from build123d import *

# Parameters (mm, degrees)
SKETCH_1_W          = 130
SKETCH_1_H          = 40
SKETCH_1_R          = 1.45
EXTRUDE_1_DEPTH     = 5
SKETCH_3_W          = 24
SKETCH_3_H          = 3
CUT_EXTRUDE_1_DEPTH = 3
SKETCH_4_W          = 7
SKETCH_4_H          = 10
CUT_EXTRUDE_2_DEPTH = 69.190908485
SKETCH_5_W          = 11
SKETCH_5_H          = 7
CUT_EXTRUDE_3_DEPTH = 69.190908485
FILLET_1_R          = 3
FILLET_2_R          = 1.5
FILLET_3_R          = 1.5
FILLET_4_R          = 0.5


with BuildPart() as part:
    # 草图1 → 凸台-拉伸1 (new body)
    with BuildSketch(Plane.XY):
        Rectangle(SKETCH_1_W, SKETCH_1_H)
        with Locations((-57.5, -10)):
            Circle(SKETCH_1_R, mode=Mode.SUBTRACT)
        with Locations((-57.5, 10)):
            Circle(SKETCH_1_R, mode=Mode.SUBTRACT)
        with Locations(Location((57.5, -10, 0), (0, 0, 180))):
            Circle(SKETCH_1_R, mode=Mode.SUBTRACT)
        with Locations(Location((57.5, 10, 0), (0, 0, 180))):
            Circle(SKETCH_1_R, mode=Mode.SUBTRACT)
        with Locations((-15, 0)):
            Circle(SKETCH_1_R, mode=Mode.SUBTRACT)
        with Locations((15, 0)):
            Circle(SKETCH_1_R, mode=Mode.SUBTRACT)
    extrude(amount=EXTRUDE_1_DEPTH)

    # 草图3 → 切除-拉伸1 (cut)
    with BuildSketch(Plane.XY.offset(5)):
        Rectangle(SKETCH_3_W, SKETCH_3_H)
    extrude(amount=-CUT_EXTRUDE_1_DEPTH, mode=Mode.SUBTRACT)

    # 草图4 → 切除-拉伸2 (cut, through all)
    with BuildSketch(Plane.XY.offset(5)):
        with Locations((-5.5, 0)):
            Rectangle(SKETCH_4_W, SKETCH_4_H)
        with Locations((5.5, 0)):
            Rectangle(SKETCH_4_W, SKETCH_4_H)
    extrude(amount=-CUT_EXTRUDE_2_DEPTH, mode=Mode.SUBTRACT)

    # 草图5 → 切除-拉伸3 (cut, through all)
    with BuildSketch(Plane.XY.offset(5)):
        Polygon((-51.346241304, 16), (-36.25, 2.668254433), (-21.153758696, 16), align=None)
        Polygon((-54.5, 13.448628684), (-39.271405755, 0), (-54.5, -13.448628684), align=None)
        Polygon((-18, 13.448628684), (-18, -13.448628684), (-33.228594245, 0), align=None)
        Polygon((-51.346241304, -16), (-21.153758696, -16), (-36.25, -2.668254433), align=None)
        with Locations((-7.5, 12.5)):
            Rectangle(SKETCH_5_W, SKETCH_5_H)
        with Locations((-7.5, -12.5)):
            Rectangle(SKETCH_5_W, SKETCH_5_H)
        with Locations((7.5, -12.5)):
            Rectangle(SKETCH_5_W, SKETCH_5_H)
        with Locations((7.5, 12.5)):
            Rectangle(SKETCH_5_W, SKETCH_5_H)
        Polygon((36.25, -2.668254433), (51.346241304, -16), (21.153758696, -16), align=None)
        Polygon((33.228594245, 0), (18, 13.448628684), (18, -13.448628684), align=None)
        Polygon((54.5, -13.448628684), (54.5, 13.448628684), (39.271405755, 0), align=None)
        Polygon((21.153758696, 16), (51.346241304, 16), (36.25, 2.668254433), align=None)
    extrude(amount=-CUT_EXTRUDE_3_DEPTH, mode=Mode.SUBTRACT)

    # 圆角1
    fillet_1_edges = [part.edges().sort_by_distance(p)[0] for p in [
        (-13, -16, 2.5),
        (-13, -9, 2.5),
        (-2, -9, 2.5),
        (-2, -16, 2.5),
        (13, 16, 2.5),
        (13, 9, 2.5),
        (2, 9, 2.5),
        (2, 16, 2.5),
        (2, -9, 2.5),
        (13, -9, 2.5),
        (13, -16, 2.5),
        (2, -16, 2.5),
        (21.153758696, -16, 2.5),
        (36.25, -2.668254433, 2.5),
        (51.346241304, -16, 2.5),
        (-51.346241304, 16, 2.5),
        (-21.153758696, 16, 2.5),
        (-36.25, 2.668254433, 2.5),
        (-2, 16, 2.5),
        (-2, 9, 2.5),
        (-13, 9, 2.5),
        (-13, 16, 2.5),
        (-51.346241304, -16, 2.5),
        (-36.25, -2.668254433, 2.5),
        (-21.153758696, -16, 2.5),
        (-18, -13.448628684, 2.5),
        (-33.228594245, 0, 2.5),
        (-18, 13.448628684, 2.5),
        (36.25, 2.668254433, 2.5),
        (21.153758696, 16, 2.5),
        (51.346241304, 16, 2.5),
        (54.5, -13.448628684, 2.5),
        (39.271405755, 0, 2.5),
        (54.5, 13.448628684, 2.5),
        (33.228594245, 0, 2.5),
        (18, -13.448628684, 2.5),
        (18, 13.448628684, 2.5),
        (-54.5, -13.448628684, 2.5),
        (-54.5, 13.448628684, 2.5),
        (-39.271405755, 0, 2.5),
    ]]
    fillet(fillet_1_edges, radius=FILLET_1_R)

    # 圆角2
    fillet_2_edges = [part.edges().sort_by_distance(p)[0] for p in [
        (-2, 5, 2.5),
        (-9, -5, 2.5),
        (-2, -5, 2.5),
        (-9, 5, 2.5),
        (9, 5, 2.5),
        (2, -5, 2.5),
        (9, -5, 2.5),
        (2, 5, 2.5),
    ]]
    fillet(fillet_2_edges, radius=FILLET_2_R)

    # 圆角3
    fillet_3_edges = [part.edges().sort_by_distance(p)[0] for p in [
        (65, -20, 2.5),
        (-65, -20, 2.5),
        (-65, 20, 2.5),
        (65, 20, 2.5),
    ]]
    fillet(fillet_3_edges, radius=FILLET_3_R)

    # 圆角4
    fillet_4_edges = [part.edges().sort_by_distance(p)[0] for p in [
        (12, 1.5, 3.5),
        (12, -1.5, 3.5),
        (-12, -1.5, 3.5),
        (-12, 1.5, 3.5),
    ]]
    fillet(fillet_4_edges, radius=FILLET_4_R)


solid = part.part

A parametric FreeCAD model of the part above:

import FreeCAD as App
import Part
import Sketcher

V = App.Vector


def edges_at(feature, points):
    """Names of the edges that pass closest to the given points."""
    edges = feature.Shape.Edges
    near = lambda p: min(range(len(edges)), key=lambda i: edges[i].distToShape(Part.Vertex(*p))[0])
    return sorted({f"Edge{near(p) + 1}" for p in points})

doc = App.newDocument("Part")
body = doc.addObject("PartDesign::Body", "Body")

# Sketch on XY plane
sketch1 = body.newObject("Sketcher::SketchObject", "Sketch")
sketch1.AttachmentSupport = (doc.getObject("XY_Plane"), [""])
sketch1.MapMode = "FlatFace"
sketch1.addGeometry([
    Part.LineSegment(V(-65, 20, 0), V(-65, -20, 0)),  # 0
    Part.LineSegment(V(-65, -20, 0), V(65, -20, 0)),  # 1
    Part.LineSegment(V(65, -20, 0), V(65, 20, 0)),  # 2
    Part.LineSegment(V(65, 20, 0), V(-65, 20, 0)),  # 3
    Part.Circle(V(-57.5, -10, 0), V(0, 0, 1), 1.45),  # 4
    Part.Circle(V(57.5, -10, 0), V(0, 0, 1), 1.45),  # 5
    Part.Circle(V(-15, 0, 0), V(0, 0, 1), 1.45),  # 6
    Part.Circle(V(-57.5, 10, 0), V(0, 0, 1), 1.45),  # 7
    Part.Circle(V(15, 0, 0), V(0, 0, 1), 1.45),  # 8
    Part.Circle(V(57.5, 10, 0), V(0, 0, 1), 1.45),  # 9
], False)
sketch1.addConstraint([
    Sketcher.Constraint("Coincident", 0, 2, 1, 1),
    Sketcher.Constraint("Coincident", 1, 2, 2, 1),
    Sketcher.Constraint("Coincident", 2, 2, 3, 1),
    Sketcher.Constraint("Coincident", 3, 2, 0, 1),
    Sketcher.Constraint("Vertical", 0),
    Sketcher.Constraint("Horizontal", 1),
    Sketcher.Constraint("Vertical", 2),
    Sketcher.Constraint("Horizontal", 3),
    Sketcher.Constraint("Equal", 4, 5),
    Sketcher.Constraint("Equal", 5, 6),
    Sketcher.Constraint("Equal", 6, 7),
    Sketcher.Constraint("Equal", 7, 8),
    Sketcher.Constraint("Equal", 8, 9),
    Sketcher.Constraint("Symmetric", 5, 3, 7, 3, -1, 1),
    Sketcher.Constraint("Symmetric", 6, 3, 8, 3, -1, 1),
    Sketcher.Constraint("Symmetric", 4, 3, 9, 3, -1, 1),
    Sketcher.Constraint("Symmetric", 0, 2, 2, 2, -1, 1),
    Sketcher.Constraint("Symmetric", 4, 3, 5, 3, -2),
    Sketcher.Constraint("PointOnObject", 6, 3, -1),
    Sketcher.Constraint("Diameter", 4, 2.9),
    Sketcher.Constraint("DistanceX", 1, 1, 1, 2, 130.0),
    Sketcher.Constraint("DistanceY", 0, 2, 0, 1, 40.0),
    Sketcher.Constraint("DistanceY", 4, 3, -1, 1, 10.0),
    Sketcher.Constraint("DistanceX", 6, 3, -1, 1, 15.0),
    Sketcher.Constraint("DistanceX", 4, 3, 5, 3, 115.0),
])
pad1 = body.newObject("PartDesign::Pad", "Pad")
pad1.Profile = sketch1
pad1.Length = 5

# Sketch on XY plane
sketch2 = body.newObject("Sketcher::SketchObject", "Sketch001")
sketch2.AttachmentSupport = (doc.getObject("XY_Plane"), [""])
sketch2.MapMode = "FlatFace"
sketch2.AttachmentOffset = App.Placement(V(0, 0, 5), App.Rotation())
sketch2.addGeometry([
    Part.LineSegment(V(-12, 1.5, 0), V(-12, -1.5, 0)),
    Part.LineSegment(V(-12, -1.5, 0), V(12, -1.5, 0)),
    Part.LineSegment(V(12, -1.5, 0), V(12, 1.5, 0)),
    Part.LineSegment(V(12, 1.5, 0), V(-12, 1.5, 0)),
], False)
sketch2.addConstraint([
    Sketcher.Constraint("Coincident", 0, 2, 1, 1),
    Sketcher.Constraint("Coincident", 1, 2, 2, 1),
    Sketcher.Constraint("Coincident", 2, 2, 3, 1),
    Sketcher.Constraint("Coincident", 3, 2, 0, 1),
    Sketcher.Constraint("Vertical", 0),
    Sketcher.Constraint("Horizontal", 1),
    Sketcher.Constraint("Vertical", 2),
    Sketcher.Constraint("Horizontal", 3),
    Sketcher.Constraint("Symmetric", 0, 2, 2, 2, -1, 1),
    Sketcher.Constraint("DistanceX", 1, 1, 1, 2, 24.0),
    Sketcher.Constraint("DistanceY", 0, 2, 0, 1, 3.0),
])
pocket1 = body.newObject("PartDesign::Pocket", "Pocket")
pocket1.Profile = sketch2
pocket1.Length = 3

# Sketch on XY plane
sketch3 = body.newObject("Sketcher::SketchObject", "Sketch002")
sketch3.AttachmentSupport = (doc.getObject("XY_Plane"), [""])
sketch3.MapMode = "FlatFace"
sketch3.AttachmentOffset = App.Placement(V(0, 0, 5), App.Rotation())
sketch3.addGeometry([
    Part.LineSegment(V(-9, 5, 0), V(-9, -5, 0)),  # 0
    Part.LineSegment(V(-9, -5, 0), V(-2, -5, 0)),  # 1
    Part.LineSegment(V(-2, -5, 0), V(-2, 5, 0)),  # 2
    Part.LineSegment(V(-2, 5, 0), V(-9, 5, 0)),  # 3
    Part.LineSegment(V(2, 5, 0), V(2, -5, 0)),  # 4
    Part.LineSegment(V(2, -5, 0), V(9, -5, 0)),  # 5
    Part.LineSegment(V(9, -5, 0), V(9, 5, 0)),  # 6
    Part.LineSegment(V(9, 5, 0), V(2, 5, 0)),  # 7
], False)
sketch3.addConstraint([
    Sketcher.Constraint("Coincident", 0, 2, 1, 1),
    Sketcher.Constraint("Coincident", 1, 2, 2, 1),
    Sketcher.Constraint("Coincident", 2, 2, 3, 1),
    Sketcher.Constraint("Coincident", 3, 2, 0, 1),
    Sketcher.Constraint("Coincident", 4, 2, 5, 1),
    Sketcher.Constraint("Coincident", 5, 2, 6, 1),
    Sketcher.Constraint("Coincident", 6, 2, 7, 1),
    Sketcher.Constraint("Coincident", 7, 2, 4, 1),
    Sketcher.Constraint("Vertical", 0),
    Sketcher.Constraint("Horizontal", 1),
    Sketcher.Constraint("Vertical", 2),
    Sketcher.Constraint("Horizontal", 3),
    Sketcher.Constraint("Vertical", 4),
    Sketcher.Constraint("Horizontal", 5),
    Sketcher.Constraint("Vertical", 6),
    Sketcher.Constraint("Horizontal", 7),
    Sketcher.Constraint("Symmetric", 2, 2, 4, 2, -1, 1),
    Sketcher.Constraint("Symmetric", 0, 2, 6, 2, -1, 1),
    Sketcher.Constraint("Horizontal", 1, 2, 4, 2),
    Sketcher.Constraint("DistanceX", 1, 1, 1, 2, 7.0),
    Sketcher.Constraint("DistanceY", 0, 2, 0, 1, 10.0),
    Sketcher.Constraint("DistanceX", 0, 2, -1, 1, 9.0),
])
pocket2 = body.newObject("PartDesign::Pocket", "Pocket001")
pocket2.Profile = sketch3
pocket2.Type = "ThroughAll"

# Sketch on XY plane
sketch4 = body.newObject("Sketcher::SketchObject", "Sketch003")
sketch4.AttachmentSupport = (doc.getObject("XY_Plane"), [""])
sketch4.MapMode = "FlatFace"
sketch4.AttachmentOffset = App.Placement(V(0, 0, 5), App.Rotation())
sketch4.addGeometry([
    Part.LineSegment(V(-51.346241, 16, 0), V(-36.25, 2.668254, 0)),  # 0
    Part.LineSegment(V(-36.25, 2.668254, 0), V(-21.153759, 16, 0)),  # 1
    Part.LineSegment(V(-21.153759, 16, 0), V(-51.346241, 16, 0)),  # 2
    Part.LineSegment(V(-39.271406, 0, 0), V(-54.5, 13.448629, 0)),  # 3
    Part.LineSegment(V(-54.5, 13.448629, 0), V(-54.5, -13.448629, 0)),  # 4
    Part.LineSegment(V(-54.5, -13.448629, 0), V(-39.271406, 0, 0)),  # 5
    Part.LineSegment(V(-18, -13.448629, 0), V(-18, 13.448629, 0)),  # 6
    Part.LineSegment(V(-18, 13.448629, 0), V(-33.228594, 0, 0)),  # 7
    Part.LineSegment(V(-33.228594, 0, 0), V(-18, -13.448629, 0)),  # 8
    Part.LineSegment(V(-51.346241, -16, 0), V(-21.153759, -16, 0)),  # 9
    Part.LineSegment(V(-21.153759, -16, 0), V(-36.25, -2.668254, 0)),  # 10
    Part.LineSegment(V(-36.25, -2.668254, 0), V(-51.346241, -16, 0)),  # 11
    Part.LineSegment(V(-13, 16, 0), V(-13, 9, 0)),  # 12
    Part.LineSegment(V(-13, 9, 0), V(-2, 9, 0)),  # 13
    Part.LineSegment(V(-2, 9, 0), V(-2, 16, 0)),  # 14
    Part.LineSegment(V(-2, 16, 0), V(-13, 16, 0)),  # 15
    Part.LineSegment(V(-13, -9, 0), V(-13, -16, 0)),  # 16
    Part.LineSegment(V(-13, -16, 0), V(-2, -16, 0)),  # 17
    Part.LineSegment(V(-2, -16, 0), V(-2, -9, 0)),  # 18
    Part.LineSegment(V(-2, -9, 0), V(-13, -9, 0)),  # 19
    Part.LineSegment(V(2, -9, 0), V(2, -16, 0)),  # 20
    Part.LineSegment(V(2, -16, 0), V(13, -16, 0)),  # 21
    Part.LineSegment(V(13, -16, 0), V(13, -9, 0)),  # 22
    Part.LineSegment(V(13, -9, 0), V(2, -9, 0)),  # 23
    Part.LineSegment(V(2, 16, 0), V(2, 9, 0)),  # 24
    Part.LineSegment(V(2, 9, 0), V(13, 9, 0)),  # 25
    Part.LineSegment(V(13, 9, 0), V(13, 16, 0)),  # 26
    Part.LineSegment(V(13, 16, 0), V(2, 16, 0)),  # 27
    Part.LineSegment(V(51.346241, -16, 0), V(36.25, -2.668254, 0)),  # 28
    Part.LineSegment(V(36.25, -2.668254, 0), V(21.153759, -16, 0)),  # 29
    Part.LineSegment(V(21.153759, -16, 0), V(51.346241, -16, 0)),  # 30
    Part.LineSegment(V(33.228594, 0, 0), V(18, 13.448629, 0)),  # 31
    Part.LineSegment(V(18, 13.448629, 0), V(18, -13.448629, 0)),  # 32
    Part.LineSegment(V(18, -13.448629, 0), V(33.228594, 0, 0)),  # 33
    Part.LineSegment(V(54.5, -13.448629, 0), V(54.5, 13.448629, 0)),  # 34
    Part.LineSegment(V(54.5, 13.448629, 0), V(39.271406, 0, 0)),  # 35
    Part.LineSegment(V(39.271406, 0, 0), V(54.5, -13.448629, 0)),  # 36
    Part.LineSegment(V(51.346241, 16, 0), V(21.153759, 16, 0)),  # 37
    Part.LineSegment(V(21.153759, 16, 0), V(36.25, 2.668254, 0)),  # 38
    Part.LineSegment(V(36.25, 2.668254, 0), V(51.346241, 16, 0)),  # 39
], False)
sketch4.addConstraint([
    Sketcher.Constraint("Coincident", 0, 2, 1, 1),
    Sketcher.Constraint("Coincident", 1, 2, 2, 1),
    Sketcher.Constraint("Coincident", 2, 2, 0, 1),
    Sketcher.Constraint("Coincident", 3, 2, 4, 1),
    Sketcher.Constraint("Coincident", 4, 2, 5, 1),
    Sketcher.Constraint("Coincident", 5, 2, 3, 1),
    Sketcher.Constraint("Coincident", 6, 2, 7, 1),
    Sketcher.Constraint("Coincident", 7, 2, 8, 1),
    Sketcher.Constraint("Coincident", 8, 2, 6, 1),
    Sketcher.Constraint("Coincident", 9, 2, 10, 1),
    Sketcher.Constraint("Coincident", 10, 2, 11, 1),
    Sketcher.Constraint("Coincident", 11, 2, 9, 1),
    Sketcher.Constraint("Coincident", 12, 2, 13, 1),
    Sketcher.Constraint("Coincident", 13, 2, 14, 1),
    Sketcher.Constraint("Coincident", 14, 2, 15, 1),
    Sketcher.Constraint("Coincident", 15, 2, 12, 1),
    Sketcher.Constraint("Coincident", 16, 2, 17, 1),
    Sketcher.Constraint("Coincident", 17, 2, 18, 1),
    Sketcher.Constraint("Coincident", 18, 2, 19, 1),
    Sketcher.Constraint("Coincident", 19, 2, 16, 1),
    Sketcher.Constraint("Coincident", 20, 2, 21, 1),
    Sketcher.Constraint("Coincident", 21, 2, 22, 1),
    Sketcher.Constraint("Coincident", 22, 2, 23, 1),
    Sketcher.Constraint("Coincident", 23, 2, 20, 1),
    Sketcher.Constraint("Coincident", 24, 2, 25, 1),
    Sketcher.Constraint("Coincident", 25, 2, 26, 1),
    Sketcher.Constraint("Coincident", 26, 2, 27, 1),
    Sketcher.Constraint("Coincident", 27, 2, 24, 1),
    Sketcher.Constraint("Coincident", 28, 2, 29, 1),
    Sketcher.Constraint("Coincident", 29, 2, 30, 1),
    Sketcher.Constraint("Coincident", 30, 2, 28, 1),
    Sketcher.Constraint("Coincident", 31, 2, 32, 1),
    Sketcher.Constraint("Coincident", 32, 2, 33, 1),
    Sketcher.Constraint("Coincident", 33, 2, 31, 1),
    Sketcher.Constraint("Coincident", 34, 2, 35, 1),
    Sketcher.Constraint("Coincident", 35, 2, 36, 1),
    Sketcher.Constraint("Coincident", 36, 2, 34, 1),
    Sketcher.Constraint("Coincident", 37, 2, 38, 1),
    Sketcher.Constraint("Coincident", 38, 2, 39, 1),
    Sketcher.Constraint("Coincident", 39, 2, 37, 1),
    Sketcher.Constraint("Horizontal", 2),
    Sketcher.Constraint("Vertical", 4),
    Sketcher.Constraint("Vertical", 6),
    Sketcher.Constraint("Horizontal", 9),
    Sketcher.Constraint("Vertical", 12),
    Sketcher.Constraint("Horizontal", 13),
    Sketcher.Constraint("Vertical", 14),
    Sketcher.Constraint("Horizontal", 15),
    Sketcher.Constraint("Vertical", 16),
    Sketcher.Constraint("Horizontal", 17),
    Sketcher.Constraint("Vertical", 18),
    Sketcher.Constraint("Horizontal", 19),
    Sketcher.Constraint("Vertical", 20),
    Sketcher.Constraint("Horizontal", 21),
    Sketcher.Constraint("Vertical", 22),
    Sketcher.Constraint("Horizontal", 23),
    Sketcher.Constraint("Vertical", 24),
    Sketcher.Constraint("Horizontal", 25),
    Sketcher.Constraint("Vertical", 26),
    Sketcher.Constraint("Horizontal", 27),
    Sketcher.Constraint("Horizontal", 30),
    Sketcher.Constraint("Vertical", 32),
    Sketcher.Constraint("Vertical", 34),
    Sketcher.Constraint("Horizontal", 37),
    Sketcher.Constraint("Symmetric", 14, 2, 20, 2, -1, 1),
    Sketcher.Constraint("Symmetric", 12, 2, 22, 2, -1, 1),
    Sketcher.Constraint("Symmetric", 18, 2, 24, 2, -1, 1),
    Sketcher.Constraint("Symmetric", 16, 2, 26, 2, -1, 1),
    Sketcher.Constraint("Symmetric", 0, 2, 28, 2, -1, 1),
    Sketcher.Constraint("Symmetric", 1, 2, 29, 2, -1, 1),
    Sketcher.Constraint("Symmetric", 8, 2, 31, 2, -1, 1),
    Sketcher.Constraint("Symmetric", 7, 2, 33, 2, -1, 1),
    Sketcher.Constraint("Symmetric", 4, 2, 34, 2, -1, 1),
    Sketcher.Constraint("Symmetric", 5, 2, 35, 2, -1, 1),
    Sketcher.Constraint("Symmetric", 9, 2, 37, 2, -1, 1),
    Sketcher.Constraint("Symmetric", 10, 2, 38, 2, -1, 1),
    Sketcher.Constraint("Symmetric", 17, 2, 20, 2, -2),
    Sketcher.Constraint("Symmetric", 19, 2, 22, 2, -2),
    Sketcher.Constraint("Symmetric", 10, 2, 28, 2, -2),
    Sketcher.Constraint("Symmetric", 9, 2, 29, 2, -2),
    Sketcher.Constraint("PointOnObject", 5, 2, -1),
    Sketcher.Constraint("PointOnObject", 7, 2, -1),
    Sketcher.Constraint("Parallel", 0, 3),
    Sketcher.Constraint("Parallel", 1, 5),
    Sketcher.Constraint("Parallel", 5, 7),
    Sketcher.Constraint("Parallel", 3, 8),
    Sketcher.Constraint("Parallel", 8, 10),
    Sketcher.Constraint("Parallel", 7, 11),
    Sketcher.Constraint("Parallel", 10, 28),
    Sketcher.Constraint("Parallel", 29, 33),
    Sketcher.Constraint("Parallel", 31, 36),
    Sketcher.Constraint("Parallel", 35, 39),
    Sketcher.Constraint("Horizontal", 3, 2, 6, 2),
    Sketcher.Constraint("Horizontal", 2, 2, 14, 2),
    Sketcher.Constraint("DistanceX", 13, 1, 13, 2, 11.0),
    Sketcher.Constraint("DistanceY", 12, 2, 12, 1, 7.0),
    Sketcher.Constraint("DistanceY", -1, 1, 1, 2, 16.0),
    Sketcher.Constraint("DistanceX", 6, 2, -1, 1, 18.0),
    Sketcher.Constraint("DistanceX", 12, 2, -1, 1, 13.0),
    Sketcher.Constraint("DistanceX", 3, 2, -1, 1, 54.5),
    Sketcher.Constraint("DistanceX", 0, 2, -1, 1, 36.25),
    Sketcher.Constraint("DistanceX", 2, 2, 2, 1, 30.192483),
    Sketcher.Constraint("DistanceY", 4, 2, 4, 1, 26.897257),
    Sketcher.Constraint("DistanceX", 5, 2, 7, 2, 6.042812),
])
pocket3 = body.newObject("PartDesign::Pocket", "Pocket002")
pocket3.Profile = sketch4
pocket3.Type = "ThroughAll"
doc.recompute()

fillet = body.newObject("PartDesign::Fillet", "Fillet")
fillet.Base = (pocket3, edges_at(pocket3, [
    (-13, -16, 2.5),
    (-13, -9, 2.5),
    (-2, -9, 2.5),
    (-2, -16, 2.5),
    (13, 16, 2.5),
    (13, 9, 2.5),
    (2, 9, 2.5),
    (2, 16, 2.5),
    (2, -9, 2.5),
    (13, -9, 2.5),
    (13, -16, 2.5),
    (2, -16, 2.5),
    (21.154, -16, 2.5),
    (36.25, -2.668, 2.5),
    (51.346, -16, 2.5),
    (-51.346, 16, 2.5),
    (-21.154, 16, 2.5),
    (-36.25, 2.668, 2.5),
    (-2, 16, 2.5),
    (-2, 9, 2.5),
    (-13, 9, 2.5),
    (-13, 16, 2.5),
    (-51.346, -16, 2.5),
    (-36.25, -2.668, 2.5),
    (-21.154, -16, 2.5),
    (-18, -13.449, 2.5),
    (-33.229, 0, 2.5),
    (-18, 13.449, 2.5),
    (36.25, 2.668, 2.5),
    (21.154, 16, 2.5),
    (51.346, 16, 2.5),
    (54.5, -13.449, 2.5),
    (39.271, 0, 2.5),
    (54.5, 13.449, 2.5),
    (33.229, 0, 2.5),
    (18, -13.449, 2.5),
    (18, 13.449, 2.5),
    (-54.5, -13.449, 2.5),
    (-54.5, 13.449, 2.5),
    (-39.271, 0, 2.5),
]))
fillet.Radius = 3
doc.recompute()

fillet2 = body.newObject("PartDesign::Fillet", "Fillet001")
fillet2.Base = (fillet, edges_at(fillet, [
    (-2, 5, 2.5),
    (-9, -5, 2.5),
    (-2, -5, 2.5),
    (-9, 5, 2.5),
    (9, 5, 2.5),
    (2, -5, 2.5),
    (9, -5, 2.5),
    (2, 5, 2.5),
]))
fillet2.Radius = 1.5
doc.recompute()

fillet3 = body.newObject("PartDesign::Fillet", "Fillet002")
fillet3.Base = (fillet2, edges_at(fillet2, [
    (65, -20, 2.5),
    (-65, -20, 2.5),
    (-65, 20, 2.5),
    (65, 20, 2.5),
]))
fillet3.Radius = 1.5
doc.recompute()

fillet4 = body.newObject("PartDesign::Fillet", "Fillet003")
fillet4.Base = (fillet3, edges_at(fillet3, [
    (12, 1.5, 3.5),
    (12, -1.5, 3.5),
    (-12, -1.5, 3.5),
    (-12, 1.5, 3.5),
]))
fillet4.Radius = 0.5

doc.recompute()
